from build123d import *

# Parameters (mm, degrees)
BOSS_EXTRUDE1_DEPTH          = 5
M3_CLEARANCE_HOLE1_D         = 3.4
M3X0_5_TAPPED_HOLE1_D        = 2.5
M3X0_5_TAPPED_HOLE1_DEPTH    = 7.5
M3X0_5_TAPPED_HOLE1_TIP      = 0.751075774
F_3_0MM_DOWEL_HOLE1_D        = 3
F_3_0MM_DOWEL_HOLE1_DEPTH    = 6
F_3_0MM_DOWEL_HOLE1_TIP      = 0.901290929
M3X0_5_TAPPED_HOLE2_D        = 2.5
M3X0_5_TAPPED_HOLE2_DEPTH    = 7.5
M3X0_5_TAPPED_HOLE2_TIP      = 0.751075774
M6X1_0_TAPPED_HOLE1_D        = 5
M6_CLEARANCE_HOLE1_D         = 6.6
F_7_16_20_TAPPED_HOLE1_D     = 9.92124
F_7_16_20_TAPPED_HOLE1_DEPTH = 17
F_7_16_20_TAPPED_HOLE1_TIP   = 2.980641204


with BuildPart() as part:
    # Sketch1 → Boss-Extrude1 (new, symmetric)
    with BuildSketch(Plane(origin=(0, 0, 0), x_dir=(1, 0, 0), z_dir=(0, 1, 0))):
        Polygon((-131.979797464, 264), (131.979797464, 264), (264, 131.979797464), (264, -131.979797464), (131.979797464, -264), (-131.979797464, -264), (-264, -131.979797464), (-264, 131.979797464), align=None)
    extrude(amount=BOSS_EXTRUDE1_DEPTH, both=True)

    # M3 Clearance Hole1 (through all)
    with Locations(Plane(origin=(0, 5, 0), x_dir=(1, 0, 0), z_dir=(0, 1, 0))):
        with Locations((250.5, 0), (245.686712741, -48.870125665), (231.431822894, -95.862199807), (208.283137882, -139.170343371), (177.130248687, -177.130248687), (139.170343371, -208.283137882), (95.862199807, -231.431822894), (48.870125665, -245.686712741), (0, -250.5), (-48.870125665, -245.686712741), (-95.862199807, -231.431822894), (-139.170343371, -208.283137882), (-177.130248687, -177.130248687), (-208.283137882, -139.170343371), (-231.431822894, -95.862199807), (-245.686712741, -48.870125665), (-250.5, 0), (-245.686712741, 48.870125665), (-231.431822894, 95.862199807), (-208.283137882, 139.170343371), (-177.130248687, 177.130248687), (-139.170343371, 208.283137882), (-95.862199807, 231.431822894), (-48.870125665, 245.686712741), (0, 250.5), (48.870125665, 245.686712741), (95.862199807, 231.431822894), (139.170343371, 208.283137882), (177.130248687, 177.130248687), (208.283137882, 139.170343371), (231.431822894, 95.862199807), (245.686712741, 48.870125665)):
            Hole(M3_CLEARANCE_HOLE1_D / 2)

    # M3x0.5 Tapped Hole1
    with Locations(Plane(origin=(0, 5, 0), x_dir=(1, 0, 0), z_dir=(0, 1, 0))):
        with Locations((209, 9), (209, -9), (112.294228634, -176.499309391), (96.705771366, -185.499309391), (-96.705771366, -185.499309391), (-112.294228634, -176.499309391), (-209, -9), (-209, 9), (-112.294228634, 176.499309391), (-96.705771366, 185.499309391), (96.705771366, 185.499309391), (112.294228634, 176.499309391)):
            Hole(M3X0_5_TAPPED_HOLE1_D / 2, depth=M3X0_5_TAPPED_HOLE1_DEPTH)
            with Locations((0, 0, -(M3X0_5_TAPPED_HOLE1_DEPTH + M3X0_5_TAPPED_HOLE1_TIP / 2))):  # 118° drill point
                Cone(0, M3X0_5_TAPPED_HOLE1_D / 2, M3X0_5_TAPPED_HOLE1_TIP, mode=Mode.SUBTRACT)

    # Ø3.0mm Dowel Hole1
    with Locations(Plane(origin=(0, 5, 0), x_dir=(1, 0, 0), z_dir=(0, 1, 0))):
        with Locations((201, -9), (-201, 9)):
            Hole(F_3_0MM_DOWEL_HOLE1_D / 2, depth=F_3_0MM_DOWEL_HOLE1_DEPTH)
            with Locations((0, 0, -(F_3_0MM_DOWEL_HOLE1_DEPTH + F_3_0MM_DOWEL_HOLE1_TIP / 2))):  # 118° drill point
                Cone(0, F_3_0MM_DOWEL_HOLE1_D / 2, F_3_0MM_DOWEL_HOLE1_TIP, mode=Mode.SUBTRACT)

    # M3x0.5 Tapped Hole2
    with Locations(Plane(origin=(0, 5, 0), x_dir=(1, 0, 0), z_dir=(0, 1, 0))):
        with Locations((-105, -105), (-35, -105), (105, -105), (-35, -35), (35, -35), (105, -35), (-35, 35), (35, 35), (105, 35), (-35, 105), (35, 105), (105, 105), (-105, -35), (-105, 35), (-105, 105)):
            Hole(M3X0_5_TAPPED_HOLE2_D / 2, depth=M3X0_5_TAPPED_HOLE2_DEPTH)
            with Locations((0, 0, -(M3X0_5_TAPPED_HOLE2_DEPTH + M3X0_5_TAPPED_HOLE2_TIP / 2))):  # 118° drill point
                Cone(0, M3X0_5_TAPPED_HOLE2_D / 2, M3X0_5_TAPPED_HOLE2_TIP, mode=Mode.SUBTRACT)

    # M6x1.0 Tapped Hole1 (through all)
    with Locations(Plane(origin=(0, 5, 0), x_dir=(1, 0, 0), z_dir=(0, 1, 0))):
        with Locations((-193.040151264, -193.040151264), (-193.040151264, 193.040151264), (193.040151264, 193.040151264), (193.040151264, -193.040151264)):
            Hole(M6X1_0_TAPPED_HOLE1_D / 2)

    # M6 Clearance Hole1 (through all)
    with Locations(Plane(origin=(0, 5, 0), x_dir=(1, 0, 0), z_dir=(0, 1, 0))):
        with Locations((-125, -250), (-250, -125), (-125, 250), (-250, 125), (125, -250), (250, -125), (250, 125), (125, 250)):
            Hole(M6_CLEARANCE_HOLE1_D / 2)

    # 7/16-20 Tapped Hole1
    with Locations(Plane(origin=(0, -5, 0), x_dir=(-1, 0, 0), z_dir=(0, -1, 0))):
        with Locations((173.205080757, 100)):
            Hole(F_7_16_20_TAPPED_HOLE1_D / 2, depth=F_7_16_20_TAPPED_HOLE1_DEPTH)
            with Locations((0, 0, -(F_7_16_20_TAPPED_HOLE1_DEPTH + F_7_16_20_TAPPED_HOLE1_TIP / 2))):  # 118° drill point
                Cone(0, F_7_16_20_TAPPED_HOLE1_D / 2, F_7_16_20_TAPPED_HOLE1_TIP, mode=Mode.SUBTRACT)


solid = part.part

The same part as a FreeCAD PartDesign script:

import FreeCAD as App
import Part
import Sketcher


def add_polygon(sketch, points):
    """Adds a closed chain of lines whose ends are joined by coincident constraints."""
    first, n = sketch.GeometryCount, len(points)
    for a, b in zip(points, points[1:] + points[:1]):
        sketch.addGeometry(Part.LineSegment(App.Vector(*a, 0), App.Vector(*b, 0)), False)
    for i in range(n):
        sketch.addConstraint(Sketcher.Constraint("Coincident", first + i, 2, first + (i + 1) % n, 1))

doc = App.newDocument("Part")
body = doc.addObject("PartDesign::Body", "Body")

# Sketch on XZ plane
sketch1 = body.newObject("Sketcher::SketchObject", "Sketch")
sketch1.AttachmentSupport = (doc.getObject("XZ_Plane"), [""])
sketch1.MapMode = "FlatFace"
add_polygon(sketch1, [(132, -264), (-132, -264), (-264, -132), (-264, 132), (-132, 264), (132, 264), (264, 132), (264, -132)])  # lines 0-7
sketch1.addConstraint([
    Sketcher.Constraint("Horizontal", 0),
    Sketcher.Constraint("Vertical", 2),
    Sketcher.Constraint("Horizontal", 4),
    Sketcher.Constraint("Vertical", 6),
    Sketcher.Constraint("Symmetric", 0, 2, 4, 2, -1, 1),
    Sketcher.Constraint("Symmetric", 1, 2, 5, 2, -1, 1),
    Sketcher.Constraint("Perpendicular", 1, 3),
    Sketcher.Constraint("Perpendicular", 5, 7),
    Sketcher.Constraint("Horizontal", 2, 2, 5, 2),
    Sketcher.Constraint("Horizontal", 1, 2, 6, 2),
    Sketcher.Constraint("Vertical", 0, 2, 3, 2),
    Sketcher.Constraint("Equal", 4, 2),
    Sketcher.Constraint("DistanceY", 0, 2, -1, 1, 264.0),
    Sketcher.Constraint("Distance", 1, 186.704761),
])
pad1 = body.newObject("PartDesign::Pad", "Pad")
pad1.Profile = sketch1
pad1.Length = 10
pad1.Midplane = True

# Sketch on XZ plane
sketch2 = body.newObject("Sketcher::SketchObject", "Sketch001")
sketch2.AttachmentSupport = (doc.getObject("XZ_Plane"), [""])
sketch2.MapMode = "FlatFace"
sketch2.AttachmentOffset = App.Placement(App.Vector(0, 0, -5), App.Rotation())
sketch2.addGeometry([
    Part.Circle(App.Vector(250.5, 0, 0), App.Vector(0, 0, 1), 1.7),  # 0
    Part.Circle(App.Vector(245.7, 48.9, 0), App.Vector(0, 0, 1), 1.7),  # 1
    Part.Circle(App.Vector(231.4, 95.9, 0), App.Vector(0, 0, 1), 1.7),  # 2
    Part.Circle(App.Vector(208.3, 139.2, 0), App.Vector(0, 0, 1), 1.7),  # 3
    Part.Circle(App.Vector(177.1, 177.1, 0), App.Vector(0, 0, 1), 1.7),  # 4
    Part.Circle(App.Vector(139.2, 208.3, 0), App.Vector(0, 0, 1), 1.7),  # 5
    Part.Circle(App.Vector(95.9, 231.4, 0), App.Vector(0, 0, 1), 1.7),  # 6
    Part.Circle(App.Vector(48.9, 245.7, 0), App.Vector(0, 0, 1), 1.7),  # 7
    Part.Circle(App.Vector(0, 250.5, 0), App.Vector(0, 0, 1), 1.7),  # 8
    Part.Circle(App.Vector(-48.9, 245.7, 0), App.Vector(0, 0, 1), 1.7),  # 9
    Part.Circle(App.Vector(-95.9, 231.4, 0), App.Vector(0, 0, 1), 1.7),  # 10
    Part.Circle(App.Vector(-139.2, 208.3, 0), App.Vector(0, 0, 1), 1.7),  # 11
    Part.Circle(App.Vector(-177.1, 177.1, 0), App.Vector(0, 0, 1), 1.7),  # 12
    Part.Circle(App.Vector(-208.3, 139.2, 0), App.Vector(0, 0, 1), 1.7),  # 13
    Part.Circle(App.Vector(-231.4, 95.9, 0), App.Vector(0, 0, 1), 1.7),  # 14
    Part.Circle(App.Vector(-245.7, 48.9, 0), App.Vector(0, 0, 1), 1.7),  # 15
    Part.Circle(App.Vector(-250.5, 0, 0), App.Vector(0, 0, 1), 1.7),  # 16
    Part.Circle(App.Vector(-245.7, -48.9, 0), App.Vector(0, 0, 1), 1.7),  # 17
    Part.Circle(App.Vector(-231.4, -95.9, 0), App.Vector(0, 0, 1), 1.7),  # 18
    Part.Circle(App.Vector(-208.3, -139.2, 0), App.Vector(0, 0, 1), 1.7),  # 19
    Part.Circle(App.Vector(-177.1, -177.1, 0), App.Vector(0, 0, 1), 1.7),  # 20
    Part.Circle(App.Vector(-139.2, -208.3, 0), App.Vector(0, 0, 1), 1.7),  # 21
    Part.Circle(App.Vector(-95.9, -231.4, 0), App.Vector(0, 0, 1), 1.7),  # 22
    Part.Circle(App.Vector(-48.9, -245.7, 0), App.Vector(0, 0, 1), 1.7),  # 23
    Part.Circle(App.Vector(0, -250.5, 0), App.Vector(0, 0, 1), 1.7),  # 24
    Part.Circle(App.Vector(48.9, -245.7, 0), App.Vector(0, 0, 1), 1.7),  # 25
    Part.Circle(App.Vector(95.9, -231.4, 0), App.Vector(0, 0, 1), 1.7),  # 26
    Part.Circle(App.Vector(139.2, -208.3, 0), App.Vector(0, 0, 1), 1.7),  # 27
    Part.Circle(App.Vector(177.1, -177.1, 0), App.Vector(0, 0, 1), 1.7),  # 28
    Part.Circle(App.Vector(208.3, -139.2, 0), App.Vector(0, 0, 1), 1.7),  # 29
    Part.Circle(App.Vector(231.4, -95.9, 0), App.Vector(0, 0, 1), 1.7),  # 30
    Part.Circle(App.Vector(245.7, -48.9, 0), App.Vector(0, 0, 1), 1.7),  # 31
], False)
sketch2.addConstraint([
    Sketcher.Constraint("Equal", 0, 1),
    Sketcher.Constraint("Equal", 1, 2),
    Sketcher.Constraint("Equal", 2, 3),
    Sketcher.Constraint("Equal", 3, 4),
    Sketcher.Constraint("Equal", 4, 5),
    Sketcher.Constraint("Equal", 5, 6),
    Sketcher.Constraint("Equal", 6, 7),
    Sketcher.Constraint("Equal", 7, 8),
    Sketcher.Constraint("Equal", 8, 9),
    Sketcher.Constraint("Equal", 9, 10),
    Sketcher.Constraint("Equal", 10, 11),
    Sketcher.Constraint("Equal", 11, 12),
    Sketcher.Constraint("Equal", 12, 13),
    Sketcher.Constraint("Equal", 13, 14),
    Sketcher.Constraint("Equal", 14, 15),
    Sketcher.Constraint("Equal", 15, 16),
    Sketcher.Constraint("Equal", 16, 17),
    Sketcher.Constraint("Equal", 17, 18),
    Sketcher.Constraint("Equal", 18, 19),
    Sketcher.Constraint("Equal", 19, 20),
    Sketcher.Constraint("Equal", 20, 21),
    Sketcher.Constraint("Equal", 21, 22),
    Sketcher.Constraint("Equal", 22, 23),
    Sketcher.Constraint("Equal", 23, 24),
    Sketcher.Constraint("Equal", 24, 25),
    Sketcher.Constraint("Equal", 25, 26),
    Sketcher.Constraint("Equal", 26, 27),
    Sketcher.Constraint("Equal", 27, 28),
    Sketcher.Constraint("Equal", 28, 29),
    Sketcher.Constraint("Equal", 29, 30),
    Sketcher.Constraint("Equal", 30, 31),
    Sketcher.Constraint("Symmetric", 0, 3, 16, 3, -1, 1),
    Sketcher.Constraint("Symmetric", 1, 3, 17, 3, -1, 1),
    Sketcher.Constraint("Symmetric", 2, 3, 18, 3, -1, 1),
    Sketcher.Constraint("Symmetric", 3, 3, 19, 3, -1, 1),
    Sketcher.Constraint("Symmetric", 4, 3, 20, 3, -1, 1),
    Sketcher.Constraint("Symmetric", 5, 3, 21, 3, -1, 1),
    Sketcher.Constraint("Symmetric", 6, 3, 22, 3, -1, 1),
    Sketcher.Constraint("Symmetric", 7, 3, 23, 3, -1, 1),
    Sketcher.Constraint("Symmetric", 8, 3, 24, 3, -1, 1),
    Sketcher.Constraint("Symmetric", 9, 3, 25, 3, -1, 1),
    Sketcher.Constraint("Symmetric", 10, 3, 26, 3, -1, 1),
    Sketcher.Constraint("Symmetric", 11, 3, 27, 3, -1, 1),
    Sketcher.Constraint("Symmetric", 12, 3, 28, 3, -1, 1),
    Sketcher.Constraint("Symmetric", 13, 3, 29, 3, -1, 1),
    Sketcher.Constraint("Symmetric", 14, 3, 30, 3, -1, 1),
    Sketcher.Constraint("Symmetric", 15, 3, 31, 3, -1, 1),
    Sketcher.Constraint("Symmetric", 7, 3, 9, 3, -2),
    Sketcher.Constraint("Symmetric", 6, 3, 10, 3, -2),
    Sketcher.Constraint("Symmetric", 5, 3, 11, 3, -2),
    Sketcher.Constraint("Symmetric", 4, 3, 12, 3, -2),
    Sketcher.Constraint("Symmetric", 3, 3, 13, 3, -2),
    Sketcher.Constraint("Symmetric", 2, 3, 14, 3, -2),
    Sketcher.Constraint("Symmetric", 1, 3, 15, 3, -2),
    Sketcher.Constraint("PointOnObject", 0, 3, -1),
    Sketcher.Constraint("PointOnObject", 8, 3, -2),
    Sketcher.Constraint("Diameter", 0, 3.4),
    Sketcher.Constraint("DistanceX", -1, 1, 0, 3, 250.5),
    Sketcher.Constraint("DistanceY", -1, 1, 8, 3, 250.5),
    Sketcher.Constraint("DistanceY", -1, 1, 2, 3, 95.8622),
    Sketcher.Constraint("DistanceX", -1, 1, 6, 3, 95.8622),
    Sketcher.Constraint("DistanceX", -1, 1, 4, 3, 177.130249),
    Sketcher.Constraint("DistanceY", -1, 1, 4, 3, 177.130249),
    Sketcher.Constraint("DistanceX", 2, 3, 1, 3, 14.25489),
    Sketcher.Constraint("DistanceX", 4, 3, 3, 3, 31.152889),
    Sketcher.Constraint("DistanceY", 4, 3, 5, 3, 31.152889),
    Sketcher.Constraint("DistanceX", 5, 3, 2, 3, 92.26148),
    Sketcher.Constraint("DistanceY", 3, 3, 6, 3, 92.26148),
    Sketcher.Constraint("DistanceY", 6, 3, 7, 3, 14.25489),
    Sketcher.Constraint("DistanceX", 9, 3, 7, 3, 97.740251),
    Sketcher.Constraint("DistanceX", 9, 3, 5, 3, 188.040469),
    Sketcher.Constraint("DistanceY", 17, 3, 15, 3, 97.740251),
    Sketcher.Constraint("DistanceY", 17, 3, 13, 3, 188.040469),
])
doc.recompute()
hole = body.newObject("PartDesign::Hole", "Hole")
hole.Profile = sketch2
hole.ThreadType = "None"
hole.Diameter = 3.4
hole.DepthType = "ThroughAll"
hole.Reversed = True

# Sketch on XZ plane
sketch3 = body.newObject("Sketcher::SketchObject", "Sketch002")
sketch3.AttachmentSupport = (doc.getObject("XZ_Plane"), [""])
sketch3.MapMode = "FlatFace"
sketch3.AttachmentOffset = App.Placement(App.Vector(0, 0, -5), App.Rotation())
sketch3.addGeometry([
    Part.Circle(App.Vector(209, -9, 0), App.Vector(0, 0, 1), 1.2),  # 0
    Part.Circle(App.Vector(209, 9, 0), App.Vector(0, 0, 1), 1.2),  # 1
    Part.Circle(App.Vector(112.3, 176.5, 0), App.Vector(0, 0, 1), 1.2),  # 2
    Part.Circle(App.Vector(96.7, 185.5, 0), App.Vector(0, 0, 1), 1.2),  # 3
    Part.Circle(App.Vector(-96.7, 185.5, 0), App.Vector(0, 0, 1), 1.2),  # 4
    Part.Circle(App.Vector(-112.3, 176.5, 0), App.Vector(0, 0, 1), 1.2),  # 5
    Part.Circle(App.Vector(-209, 9, 0), App.Vector(0, 0, 1), 1.2),  # 6
    Part.Circle(App.Vector(-209, -9, 0), App.Vector(0, 0, 1), 1.2),  # 7
    Part.Circle(App.Vector(-112.3, -176.5, 0), App.Vector(0, 0, 1), 1.2),  # 8
    Part.Circle(App.Vector(-96.7, -185.5, 0), App.Vector(0, 0, 1), 1.2),  # 9
    Part.Circle(App.Vector(96.7, -185.5, 0), App.Vector(0, 0, 1), 1.2),  # 10
    Part.Circle(App.Vector(112.3, -176.5, 0), App.Vector(0, 0, 1), 1.2),  # 11
], False)
sketch3.addConstraint([
    Sketcher.Constraint("Equal", 0, 1),
    Sketcher.Constraint("Equal", 1, 2),
    Sketcher.Constraint("Equal", 2, 3),
    Sketcher.Constraint("Equal", 3, 4),
    Sketcher.Constraint("Equal", 4, 5),
    Sketcher.Constraint("Equal", 5, 6),
    Sketcher.Constraint("Equal", 6, 7),
    Sketcher.Constraint("Equal", 7, 8),
    Sketcher.Constraint("Equal", 8, 9),
    Sketcher.Constraint("Equal", 9, 10),
    Sketcher.Constraint("Equal", 10, 11),
    Sketcher.Constraint("Symmetric", 0, 3, 6, 3, -1, 1),
    Sketcher.Constraint("Symmetric", 1, 3, 7, 3, -1, 1),
    Sketcher.Constraint("Symmetric", 2, 3, 8, 3, -1, 1),
    Sketcher.Constraint("Symmetric", 3, 3, 9, 3, -1, 1),
    Sketcher.Constraint("Symmetric", 4, 3, 10, 3, -1, 1),
    Sketcher.Constraint("Symmetric", 5, 3, 11, 3, -1, 1),
    Sketcher.Constraint("Symmetric", 3, 3, 4, 3, -2),
    Sketcher.Constraint("Symmetric", 2, 3, 5, 3, -2),
    Sketcher.Constraint("Symmetric", 1, 3, 6, 3, -2),
    Sketcher.Constraint("Diameter", 0, 2.5),
    Sketcher.Constraint("DistanceX", -1, 1, 0, 3, 209.0),
    Sketcher.Constraint("DistanceY", 0, 3, -1, 1, 9.0),
    Sketcher.Constraint("DistanceY", 2, 3, 3, 3, 9.0),
    Sketcher.Constraint("DistanceX", 4, 3, 2, 3, 209.0),
    Sketcher.Constraint("DistanceX", -1, 1, 2, 3, 112.294229),
    Sketcher.Constraint("DistanceY", -1, 1, 2, 3, 176.499309),
])
doc.recompute()
hole2 = body.newObject("PartDesign::Hole", "Hole001")
hole2.Profile = sketch3
hole2.ThreadType = "None"
hole2.Diameter = 2.5
hole2.DepthType = "Dimension"
hole2.Depth = 7.5
hole2.DrillPoint = "Angled"
hole2.DrillPointAngle = 118
hole2.Reversed = True

# Sketch on XZ plane
sketch4 = body.newObject("Sketcher::SketchObject", "Sketch003")
sketch4.AttachmentSupport = (doc.getObject("XZ_Plane"), [""])
sketch4.MapMode = "FlatFace"
sketch4.AttachmentOffset = App.Placement(App.Vector(0, 0, -5), App.Rotation())
sketch4.addGeometry([
    Part.Circle(App.Vector(201, 9, 0), App.Vector(0, 0, 1), 1.5),
    Part.Circle(App.Vector(-201, -9, 0), App.Vector(0, 0, 1), 1.5),
], False)
sketch4.addConstraint([
    Sketcher.Constraint("Equal", 0, 1),
    Sketcher.Constraint("Symmetric", 0, 3, 1, 3, -1, 1),
    Sketcher.Constraint("Diameter", 0, 3.0),
    Sketcher.Constraint("DistanceX", -1, 1, 0, 3, 201.0),
    Sketcher.Constraint("DistanceY", -1, 1, 0, 3, 9.0),
])
doc.recompute()
hole3 = body.newObject("PartDesign::Hole", "Hole002")
hole3.Profile = sketch4
hole3.ThreadType = "None"
hole3.Diameter = 3
hole3.DepthType = "Dimension"
hole3.Depth = 6
hole3.DrillPoint = "Angled"
hole3.DrillPointAngle = 118
hole3.Reversed = True

# Sketch on XZ plane
sketch5 = body.newObject("Sketcher::SketchObject", "Sketch004")
sketch5.AttachmentSupport = (doc.getObject("XZ_Plane"), [""])
sketch5.MapMode = "FlatFace"
sketch5.AttachmentOffset = App.Placement(App.Vector(0, 0, -5), App.Rotation())
sketch5.addGeometry([
    Part.Circle(App.Vector(-105, 105, 0), App.Vector(0, 0, 1), 1.2),  # 0
    Part.Circle(App.Vector(-35, 105, 0), App.Vector(0, 0, 1), 1.2),  # 1
    Part.Circle(App.Vector(105, 105, 0), App.Vector(0, 0, 1), 1.2),  # 2
    Part.Circle(App.Vector(-35, 35, 0), App.Vector(0, 0, 1), 1.2),  # 3
    Part.Circle(App.Vector(35, 35, 0), App.Vector(0, 0, 1), 1.2),  # 4
    Part.Circle(App.Vector(105, 35, 0), App.Vector(0, 0, 1), 1.2),  # 5
    Part.Circle(App.Vector(-35, -35, 0), App.Vector(0, 0, 1), 1.2),  # 6
    Part.Circle(App.Vector(35, -35, 0), App.Vector(0, 0, 1), 1.2),  # 7
    Part.Circle(App.Vector(105, -35, 0), App.Vector(0, 0, 1), 1.2),  # 8
    Part.Circle(App.Vector(-35, -105, 0), App.Vector(0, 0, 1), 1.2),  # 9
    Part.Circle(App.Vector(35, -105, 0), App.Vector(0, 0, 1), 1.2),  # 10
    Part.Circle(App.Vector(105, -105, 0), App.Vector(0, 0, 1), 1.2),  # 11
    Part.Circle(App.Vector(-105, 35, 0), App.Vector(0, 0, 1), 1.2),  # 12
    Part.Circle(App.Vector(-105, -35, 0), App.Vector(0, 0, 1), 1.2),  # 13
    Part.Circle(App.Vector(-105, -105, 0), App.Vector(0, 0, 1), 1.2),  # 14
], False)
sketch5.addConstraint([
    Sketcher.Constraint("Equal", 0, 1),
    Sketcher.Constraint("Equal", 1, 2),
    Sketcher.Constraint("Equal", 2, 3),
    Sketcher.Constraint("Equal", 3, 4),
    Sketcher.Constraint("Equal", 4, 5),
    Sketcher.Constraint("Equal", 5, 6),
    Sketcher.Constraint("Equal", 6, 7),
    Sketcher.Constraint("Equal", 7, 8),
    Sketcher.Constraint("Equal", 8, 9),
    Sketcher.Constraint("Equal", 9, 10),
    Sketcher.Constraint("Equal", 10, 11),
    Sketcher.Constraint("Equal", 11, 12),
    Sketcher.Constraint("Equal", 12, 13),
    Sketcher.Constraint("Equal", 13, 14),
    Sketcher.Constraint("Symmetric", 4, 3, 6, 3, -1, 1),
    Sketcher.Constraint("Symmetric", 3, 3, 7, 3, -1, 1),
    Sketcher.Constraint("Symmetric", 1, 3, 10, 3, -1, 1),
    Sketcher.Constraint("Symmetric", 0, 3, 11, 3, -1, 1),
    Sketcher.Constraint("Symmetric", 8, 3, 12, 3, -1, 1),
    Sketcher.Constraint("Symmetric", 5, 3, 13, 3, -1, 1),
    Sketcher.Constraint("Symmetric", 2, 3, 14, 3, -1, 1),
    Sketcher.Constraint("Symmetric", 0, 3, 2, 3, -2),
    Sketcher.Constraint("Symmetric", 3, 3, 4, 3, -2),
    Sketcher.Constraint("Symmetric", 9, 3, 10, 3, -2),
    Sketcher.Constraint("Symmetric", 5, 3, 12, 3, -2),
    Sketcher.Constraint("Horizontal", 0, 3, 1, 3),
    Sketcher.Constraint("Horizontal", 4, 3, 5, 3),
    Sketcher.Constraint("Vertical", 1, 3, 3, 3),
    Sketcher.Constraint("Vertical", 2, 3, 5, 3),
    Sketcher.Constraint("Diameter", 0, 2.5),
    Sketcher.Constraint("DistanceX", 0, 3, -1, 1, 105.0),
    Sketcher.Constraint("DistanceY", -1, 1, 0, 3, 105.0),
    Sketcher.Constraint("DistanceX", 1, 3, -1, 1, 35.0),
    Sketcher.Constraint("DistanceY", -1, 1, 3, 3, 35.0),
])
doc.recompute()
hole4 = body.newObject("PartDesign::Hole", "Hole003")
hole4.Profile = sketch5
hole4.ThreadType = "None"
hole4.Diameter = 2.5
hole4.DepthType = "Dimension"
hole4.Depth = 7.5
hole4.DrillPoint = "Angled"
hole4.DrillPointAngle = 118
hole4.Reversed = True

# Sketch on XZ plane
sketch6 = body.newObject("Sketcher::SketchObject", "Sketch005")
sketch6.AttachmentSupport = (doc.getObject("XZ_Plane"), [""])
sketch6.MapMode = "FlatFace"
sketch6.AttachmentOffset = App.Placement(App.Vector(0, 0, -5), App.Rotation())
sketch6.addGeometry([
    Part.Circle(App.Vector(-193, 193, 0), App.Vector(0, 0, 1), 2.5),
    Part.Circle(App.Vector(-193, -193, 0), App.Vector(0, 0, 1), 2.5),
    Part.Circle(App.Vector(193, -193, 0), App.Vector(0, 0, 1), 2.5),
    Part.Circle(App.Vector(193, 193, 0), App.Vector(0, 0, 1), 2.5),
], False)
sketch6.addConstraint([
    Sketcher.Constraint("Equal", 0, 1),
    Sketcher.Constraint("Equal", 1, 2),
    Sketcher.Constraint("Equal", 2, 3),
    Sketcher.Constraint("Symmetric", 0, 3, 2, 3, -1, 1),
    Sketcher.Constraint("Symmetric", 1, 3, 3, 3, -1, 1),
    Sketcher.Constraint("Symmetric", 1, 3, 2, 3, -2),
    Sketcher.Constraint("Diameter", 0, 5.0),
    Sketcher.Constraint("DistanceX", 0, 3, -1, 1, 193.040151),
    Sketcher.Constraint("DistanceY", -1, 1, 0, 3, 193.040151),
])
doc.recompute()
hole5 = body.newObject("PartDesign::Hole", "Hole004")
hole5.Profile = sketch6
hole5.ThreadType = "None"
hole5.Diameter = 5
hole5.DepthType = "ThroughAll"
hole5.Reversed = True

# Sketch on XZ plane
sketch7 = body.newObject("Sketcher::SketchObject", "Sketch006")
sketch7.AttachmentSupport = (doc.getObject("XZ_Plane"), [""])
sketch7.MapMode = "FlatFace"
sketch7.AttachmentOffset = App.Placement(App.Vector(0, 0, -5), App.Rotation())
sketch7.addGeometry([
    Part.Circle(App.Vector(-125, 250, 0), App.Vector(0, 0, 1), 3.3),  # 0
    Part.Circle(App.Vector(-250, 125, 0), App.Vector(0, 0, 1), 3.3),  # 1
    Part.Circle(App.Vector(-125, -250, 0), App.Vector(0, 0, 1), 3.3),  # 2
    Part.Circle(App.Vector(-250, -125, 0), App.Vector(0, 0, 1), 3.3),  # 3
    Part.Circle(App.Vector(125, 250, 0), App.Vector(0, 0, 1), 3.3),  # 4
    Part.Circle(App.Vector(250, 125, 0), App.Vector(0, 0, 1), 3.3),  # 5
    Part.Circle(App.Vector(250, -125, 0), App.Vector(0, 0, 1), 3.3),  # 6
    Part.Circle(App.Vector(125, -250, 0), App.Vector(0, 0, 1), 3.3),  # 7
], False)
sketch7.addConstraint([
    Sketcher.Constraint("Equal", 0, 1),
    Sketcher.Constraint("Equal", 1, 2),
    Sketcher.Constraint("Equal", 2, 3),
    Sketcher.Constraint("Equal", 3, 4),
    Sketcher.Constraint("Equal", 4, 5),
    Sketcher.Constraint("Equal", 5, 6),
    Sketcher.Constraint("Equal", 6, 7),
    Sketcher.Constraint("Symmetric", 2, 3, 4, 3, -1, 1),
    Sketcher.Constraint("Symmetric", 3, 3, 5, 3, -1, 1),
    Sketcher.Constraint("Symmetric", 1, 3, 6, 3, -1, 1),
    Sketcher.Constraint("Symmetric", 0, 3, 7, 3, -1, 1),
    Sketcher.Constraint("Symmetric", 0, 3, 4, 3, -2),
    Sketcher.Constraint("Symmetric", 1, 3, 5, 3, -2),
    Sketcher.Constraint("Diameter", 0, 6.6),
    Sketcher.Constraint("DistanceX", 0, 3, -1, 1, 125.0),
    Sketcher.Constraint("DistanceY", -1, 1, 0, 3, 250.0),
    Sketcher.Constraint("DistanceX", 1, 3, -1, 1, 250.0),
    Sketcher.Constraint("DistanceY", -1, 1, 1, 3, 125.0),
])
doc.recompute()
hole6 = body.newObject("PartDesign::Hole", "Hole005")
hole6.Profile = sketch7
hole6.ThreadType = "None"
hole6.Diameter = 6.6
hole6.DepthType = "ThroughAll"
hole6.Reversed = True

# Sketch on XZ plane
sketch8 = body.newObject("Sketcher::SketchObject", "Sketch007")
sketch8.AttachmentSupport = (doc.getObject("XZ_Plane"), [""])
sketch8.MapMode = "FlatFace"
sketch8.AttachmentOffset = App.Placement(App.Vector(0, 0, 5), App.Rotation())
sketch8.addGeometry(Part.Circle(App.Vector(-173.2, -100, 0), App.Vector(0, 0, 1), 5), False)
sketch8.addConstraint([
    Sketcher.Constraint("DistanceY", 0, 3, -1, 1, 100.0),
    Sketcher.Constraint("Diameter", 0, 9.92124),
    Sketcher.Constraint("DistanceX", 0, 3, -1, 1, 173.205081),
])
doc.recompute()
hole7 = body.newObject("PartDesign::Hole", "Hole006")
hole7.Profile = sketch8
hole7.ThreadType = "None"
hole7.Diameter = 9.92124
hole7.DepthType = "Dimension"
hole7.Depth = 17
hole7.DrillPoint = "Angled"
hole7.DrillPointAngle = 118

doc.recompute()
